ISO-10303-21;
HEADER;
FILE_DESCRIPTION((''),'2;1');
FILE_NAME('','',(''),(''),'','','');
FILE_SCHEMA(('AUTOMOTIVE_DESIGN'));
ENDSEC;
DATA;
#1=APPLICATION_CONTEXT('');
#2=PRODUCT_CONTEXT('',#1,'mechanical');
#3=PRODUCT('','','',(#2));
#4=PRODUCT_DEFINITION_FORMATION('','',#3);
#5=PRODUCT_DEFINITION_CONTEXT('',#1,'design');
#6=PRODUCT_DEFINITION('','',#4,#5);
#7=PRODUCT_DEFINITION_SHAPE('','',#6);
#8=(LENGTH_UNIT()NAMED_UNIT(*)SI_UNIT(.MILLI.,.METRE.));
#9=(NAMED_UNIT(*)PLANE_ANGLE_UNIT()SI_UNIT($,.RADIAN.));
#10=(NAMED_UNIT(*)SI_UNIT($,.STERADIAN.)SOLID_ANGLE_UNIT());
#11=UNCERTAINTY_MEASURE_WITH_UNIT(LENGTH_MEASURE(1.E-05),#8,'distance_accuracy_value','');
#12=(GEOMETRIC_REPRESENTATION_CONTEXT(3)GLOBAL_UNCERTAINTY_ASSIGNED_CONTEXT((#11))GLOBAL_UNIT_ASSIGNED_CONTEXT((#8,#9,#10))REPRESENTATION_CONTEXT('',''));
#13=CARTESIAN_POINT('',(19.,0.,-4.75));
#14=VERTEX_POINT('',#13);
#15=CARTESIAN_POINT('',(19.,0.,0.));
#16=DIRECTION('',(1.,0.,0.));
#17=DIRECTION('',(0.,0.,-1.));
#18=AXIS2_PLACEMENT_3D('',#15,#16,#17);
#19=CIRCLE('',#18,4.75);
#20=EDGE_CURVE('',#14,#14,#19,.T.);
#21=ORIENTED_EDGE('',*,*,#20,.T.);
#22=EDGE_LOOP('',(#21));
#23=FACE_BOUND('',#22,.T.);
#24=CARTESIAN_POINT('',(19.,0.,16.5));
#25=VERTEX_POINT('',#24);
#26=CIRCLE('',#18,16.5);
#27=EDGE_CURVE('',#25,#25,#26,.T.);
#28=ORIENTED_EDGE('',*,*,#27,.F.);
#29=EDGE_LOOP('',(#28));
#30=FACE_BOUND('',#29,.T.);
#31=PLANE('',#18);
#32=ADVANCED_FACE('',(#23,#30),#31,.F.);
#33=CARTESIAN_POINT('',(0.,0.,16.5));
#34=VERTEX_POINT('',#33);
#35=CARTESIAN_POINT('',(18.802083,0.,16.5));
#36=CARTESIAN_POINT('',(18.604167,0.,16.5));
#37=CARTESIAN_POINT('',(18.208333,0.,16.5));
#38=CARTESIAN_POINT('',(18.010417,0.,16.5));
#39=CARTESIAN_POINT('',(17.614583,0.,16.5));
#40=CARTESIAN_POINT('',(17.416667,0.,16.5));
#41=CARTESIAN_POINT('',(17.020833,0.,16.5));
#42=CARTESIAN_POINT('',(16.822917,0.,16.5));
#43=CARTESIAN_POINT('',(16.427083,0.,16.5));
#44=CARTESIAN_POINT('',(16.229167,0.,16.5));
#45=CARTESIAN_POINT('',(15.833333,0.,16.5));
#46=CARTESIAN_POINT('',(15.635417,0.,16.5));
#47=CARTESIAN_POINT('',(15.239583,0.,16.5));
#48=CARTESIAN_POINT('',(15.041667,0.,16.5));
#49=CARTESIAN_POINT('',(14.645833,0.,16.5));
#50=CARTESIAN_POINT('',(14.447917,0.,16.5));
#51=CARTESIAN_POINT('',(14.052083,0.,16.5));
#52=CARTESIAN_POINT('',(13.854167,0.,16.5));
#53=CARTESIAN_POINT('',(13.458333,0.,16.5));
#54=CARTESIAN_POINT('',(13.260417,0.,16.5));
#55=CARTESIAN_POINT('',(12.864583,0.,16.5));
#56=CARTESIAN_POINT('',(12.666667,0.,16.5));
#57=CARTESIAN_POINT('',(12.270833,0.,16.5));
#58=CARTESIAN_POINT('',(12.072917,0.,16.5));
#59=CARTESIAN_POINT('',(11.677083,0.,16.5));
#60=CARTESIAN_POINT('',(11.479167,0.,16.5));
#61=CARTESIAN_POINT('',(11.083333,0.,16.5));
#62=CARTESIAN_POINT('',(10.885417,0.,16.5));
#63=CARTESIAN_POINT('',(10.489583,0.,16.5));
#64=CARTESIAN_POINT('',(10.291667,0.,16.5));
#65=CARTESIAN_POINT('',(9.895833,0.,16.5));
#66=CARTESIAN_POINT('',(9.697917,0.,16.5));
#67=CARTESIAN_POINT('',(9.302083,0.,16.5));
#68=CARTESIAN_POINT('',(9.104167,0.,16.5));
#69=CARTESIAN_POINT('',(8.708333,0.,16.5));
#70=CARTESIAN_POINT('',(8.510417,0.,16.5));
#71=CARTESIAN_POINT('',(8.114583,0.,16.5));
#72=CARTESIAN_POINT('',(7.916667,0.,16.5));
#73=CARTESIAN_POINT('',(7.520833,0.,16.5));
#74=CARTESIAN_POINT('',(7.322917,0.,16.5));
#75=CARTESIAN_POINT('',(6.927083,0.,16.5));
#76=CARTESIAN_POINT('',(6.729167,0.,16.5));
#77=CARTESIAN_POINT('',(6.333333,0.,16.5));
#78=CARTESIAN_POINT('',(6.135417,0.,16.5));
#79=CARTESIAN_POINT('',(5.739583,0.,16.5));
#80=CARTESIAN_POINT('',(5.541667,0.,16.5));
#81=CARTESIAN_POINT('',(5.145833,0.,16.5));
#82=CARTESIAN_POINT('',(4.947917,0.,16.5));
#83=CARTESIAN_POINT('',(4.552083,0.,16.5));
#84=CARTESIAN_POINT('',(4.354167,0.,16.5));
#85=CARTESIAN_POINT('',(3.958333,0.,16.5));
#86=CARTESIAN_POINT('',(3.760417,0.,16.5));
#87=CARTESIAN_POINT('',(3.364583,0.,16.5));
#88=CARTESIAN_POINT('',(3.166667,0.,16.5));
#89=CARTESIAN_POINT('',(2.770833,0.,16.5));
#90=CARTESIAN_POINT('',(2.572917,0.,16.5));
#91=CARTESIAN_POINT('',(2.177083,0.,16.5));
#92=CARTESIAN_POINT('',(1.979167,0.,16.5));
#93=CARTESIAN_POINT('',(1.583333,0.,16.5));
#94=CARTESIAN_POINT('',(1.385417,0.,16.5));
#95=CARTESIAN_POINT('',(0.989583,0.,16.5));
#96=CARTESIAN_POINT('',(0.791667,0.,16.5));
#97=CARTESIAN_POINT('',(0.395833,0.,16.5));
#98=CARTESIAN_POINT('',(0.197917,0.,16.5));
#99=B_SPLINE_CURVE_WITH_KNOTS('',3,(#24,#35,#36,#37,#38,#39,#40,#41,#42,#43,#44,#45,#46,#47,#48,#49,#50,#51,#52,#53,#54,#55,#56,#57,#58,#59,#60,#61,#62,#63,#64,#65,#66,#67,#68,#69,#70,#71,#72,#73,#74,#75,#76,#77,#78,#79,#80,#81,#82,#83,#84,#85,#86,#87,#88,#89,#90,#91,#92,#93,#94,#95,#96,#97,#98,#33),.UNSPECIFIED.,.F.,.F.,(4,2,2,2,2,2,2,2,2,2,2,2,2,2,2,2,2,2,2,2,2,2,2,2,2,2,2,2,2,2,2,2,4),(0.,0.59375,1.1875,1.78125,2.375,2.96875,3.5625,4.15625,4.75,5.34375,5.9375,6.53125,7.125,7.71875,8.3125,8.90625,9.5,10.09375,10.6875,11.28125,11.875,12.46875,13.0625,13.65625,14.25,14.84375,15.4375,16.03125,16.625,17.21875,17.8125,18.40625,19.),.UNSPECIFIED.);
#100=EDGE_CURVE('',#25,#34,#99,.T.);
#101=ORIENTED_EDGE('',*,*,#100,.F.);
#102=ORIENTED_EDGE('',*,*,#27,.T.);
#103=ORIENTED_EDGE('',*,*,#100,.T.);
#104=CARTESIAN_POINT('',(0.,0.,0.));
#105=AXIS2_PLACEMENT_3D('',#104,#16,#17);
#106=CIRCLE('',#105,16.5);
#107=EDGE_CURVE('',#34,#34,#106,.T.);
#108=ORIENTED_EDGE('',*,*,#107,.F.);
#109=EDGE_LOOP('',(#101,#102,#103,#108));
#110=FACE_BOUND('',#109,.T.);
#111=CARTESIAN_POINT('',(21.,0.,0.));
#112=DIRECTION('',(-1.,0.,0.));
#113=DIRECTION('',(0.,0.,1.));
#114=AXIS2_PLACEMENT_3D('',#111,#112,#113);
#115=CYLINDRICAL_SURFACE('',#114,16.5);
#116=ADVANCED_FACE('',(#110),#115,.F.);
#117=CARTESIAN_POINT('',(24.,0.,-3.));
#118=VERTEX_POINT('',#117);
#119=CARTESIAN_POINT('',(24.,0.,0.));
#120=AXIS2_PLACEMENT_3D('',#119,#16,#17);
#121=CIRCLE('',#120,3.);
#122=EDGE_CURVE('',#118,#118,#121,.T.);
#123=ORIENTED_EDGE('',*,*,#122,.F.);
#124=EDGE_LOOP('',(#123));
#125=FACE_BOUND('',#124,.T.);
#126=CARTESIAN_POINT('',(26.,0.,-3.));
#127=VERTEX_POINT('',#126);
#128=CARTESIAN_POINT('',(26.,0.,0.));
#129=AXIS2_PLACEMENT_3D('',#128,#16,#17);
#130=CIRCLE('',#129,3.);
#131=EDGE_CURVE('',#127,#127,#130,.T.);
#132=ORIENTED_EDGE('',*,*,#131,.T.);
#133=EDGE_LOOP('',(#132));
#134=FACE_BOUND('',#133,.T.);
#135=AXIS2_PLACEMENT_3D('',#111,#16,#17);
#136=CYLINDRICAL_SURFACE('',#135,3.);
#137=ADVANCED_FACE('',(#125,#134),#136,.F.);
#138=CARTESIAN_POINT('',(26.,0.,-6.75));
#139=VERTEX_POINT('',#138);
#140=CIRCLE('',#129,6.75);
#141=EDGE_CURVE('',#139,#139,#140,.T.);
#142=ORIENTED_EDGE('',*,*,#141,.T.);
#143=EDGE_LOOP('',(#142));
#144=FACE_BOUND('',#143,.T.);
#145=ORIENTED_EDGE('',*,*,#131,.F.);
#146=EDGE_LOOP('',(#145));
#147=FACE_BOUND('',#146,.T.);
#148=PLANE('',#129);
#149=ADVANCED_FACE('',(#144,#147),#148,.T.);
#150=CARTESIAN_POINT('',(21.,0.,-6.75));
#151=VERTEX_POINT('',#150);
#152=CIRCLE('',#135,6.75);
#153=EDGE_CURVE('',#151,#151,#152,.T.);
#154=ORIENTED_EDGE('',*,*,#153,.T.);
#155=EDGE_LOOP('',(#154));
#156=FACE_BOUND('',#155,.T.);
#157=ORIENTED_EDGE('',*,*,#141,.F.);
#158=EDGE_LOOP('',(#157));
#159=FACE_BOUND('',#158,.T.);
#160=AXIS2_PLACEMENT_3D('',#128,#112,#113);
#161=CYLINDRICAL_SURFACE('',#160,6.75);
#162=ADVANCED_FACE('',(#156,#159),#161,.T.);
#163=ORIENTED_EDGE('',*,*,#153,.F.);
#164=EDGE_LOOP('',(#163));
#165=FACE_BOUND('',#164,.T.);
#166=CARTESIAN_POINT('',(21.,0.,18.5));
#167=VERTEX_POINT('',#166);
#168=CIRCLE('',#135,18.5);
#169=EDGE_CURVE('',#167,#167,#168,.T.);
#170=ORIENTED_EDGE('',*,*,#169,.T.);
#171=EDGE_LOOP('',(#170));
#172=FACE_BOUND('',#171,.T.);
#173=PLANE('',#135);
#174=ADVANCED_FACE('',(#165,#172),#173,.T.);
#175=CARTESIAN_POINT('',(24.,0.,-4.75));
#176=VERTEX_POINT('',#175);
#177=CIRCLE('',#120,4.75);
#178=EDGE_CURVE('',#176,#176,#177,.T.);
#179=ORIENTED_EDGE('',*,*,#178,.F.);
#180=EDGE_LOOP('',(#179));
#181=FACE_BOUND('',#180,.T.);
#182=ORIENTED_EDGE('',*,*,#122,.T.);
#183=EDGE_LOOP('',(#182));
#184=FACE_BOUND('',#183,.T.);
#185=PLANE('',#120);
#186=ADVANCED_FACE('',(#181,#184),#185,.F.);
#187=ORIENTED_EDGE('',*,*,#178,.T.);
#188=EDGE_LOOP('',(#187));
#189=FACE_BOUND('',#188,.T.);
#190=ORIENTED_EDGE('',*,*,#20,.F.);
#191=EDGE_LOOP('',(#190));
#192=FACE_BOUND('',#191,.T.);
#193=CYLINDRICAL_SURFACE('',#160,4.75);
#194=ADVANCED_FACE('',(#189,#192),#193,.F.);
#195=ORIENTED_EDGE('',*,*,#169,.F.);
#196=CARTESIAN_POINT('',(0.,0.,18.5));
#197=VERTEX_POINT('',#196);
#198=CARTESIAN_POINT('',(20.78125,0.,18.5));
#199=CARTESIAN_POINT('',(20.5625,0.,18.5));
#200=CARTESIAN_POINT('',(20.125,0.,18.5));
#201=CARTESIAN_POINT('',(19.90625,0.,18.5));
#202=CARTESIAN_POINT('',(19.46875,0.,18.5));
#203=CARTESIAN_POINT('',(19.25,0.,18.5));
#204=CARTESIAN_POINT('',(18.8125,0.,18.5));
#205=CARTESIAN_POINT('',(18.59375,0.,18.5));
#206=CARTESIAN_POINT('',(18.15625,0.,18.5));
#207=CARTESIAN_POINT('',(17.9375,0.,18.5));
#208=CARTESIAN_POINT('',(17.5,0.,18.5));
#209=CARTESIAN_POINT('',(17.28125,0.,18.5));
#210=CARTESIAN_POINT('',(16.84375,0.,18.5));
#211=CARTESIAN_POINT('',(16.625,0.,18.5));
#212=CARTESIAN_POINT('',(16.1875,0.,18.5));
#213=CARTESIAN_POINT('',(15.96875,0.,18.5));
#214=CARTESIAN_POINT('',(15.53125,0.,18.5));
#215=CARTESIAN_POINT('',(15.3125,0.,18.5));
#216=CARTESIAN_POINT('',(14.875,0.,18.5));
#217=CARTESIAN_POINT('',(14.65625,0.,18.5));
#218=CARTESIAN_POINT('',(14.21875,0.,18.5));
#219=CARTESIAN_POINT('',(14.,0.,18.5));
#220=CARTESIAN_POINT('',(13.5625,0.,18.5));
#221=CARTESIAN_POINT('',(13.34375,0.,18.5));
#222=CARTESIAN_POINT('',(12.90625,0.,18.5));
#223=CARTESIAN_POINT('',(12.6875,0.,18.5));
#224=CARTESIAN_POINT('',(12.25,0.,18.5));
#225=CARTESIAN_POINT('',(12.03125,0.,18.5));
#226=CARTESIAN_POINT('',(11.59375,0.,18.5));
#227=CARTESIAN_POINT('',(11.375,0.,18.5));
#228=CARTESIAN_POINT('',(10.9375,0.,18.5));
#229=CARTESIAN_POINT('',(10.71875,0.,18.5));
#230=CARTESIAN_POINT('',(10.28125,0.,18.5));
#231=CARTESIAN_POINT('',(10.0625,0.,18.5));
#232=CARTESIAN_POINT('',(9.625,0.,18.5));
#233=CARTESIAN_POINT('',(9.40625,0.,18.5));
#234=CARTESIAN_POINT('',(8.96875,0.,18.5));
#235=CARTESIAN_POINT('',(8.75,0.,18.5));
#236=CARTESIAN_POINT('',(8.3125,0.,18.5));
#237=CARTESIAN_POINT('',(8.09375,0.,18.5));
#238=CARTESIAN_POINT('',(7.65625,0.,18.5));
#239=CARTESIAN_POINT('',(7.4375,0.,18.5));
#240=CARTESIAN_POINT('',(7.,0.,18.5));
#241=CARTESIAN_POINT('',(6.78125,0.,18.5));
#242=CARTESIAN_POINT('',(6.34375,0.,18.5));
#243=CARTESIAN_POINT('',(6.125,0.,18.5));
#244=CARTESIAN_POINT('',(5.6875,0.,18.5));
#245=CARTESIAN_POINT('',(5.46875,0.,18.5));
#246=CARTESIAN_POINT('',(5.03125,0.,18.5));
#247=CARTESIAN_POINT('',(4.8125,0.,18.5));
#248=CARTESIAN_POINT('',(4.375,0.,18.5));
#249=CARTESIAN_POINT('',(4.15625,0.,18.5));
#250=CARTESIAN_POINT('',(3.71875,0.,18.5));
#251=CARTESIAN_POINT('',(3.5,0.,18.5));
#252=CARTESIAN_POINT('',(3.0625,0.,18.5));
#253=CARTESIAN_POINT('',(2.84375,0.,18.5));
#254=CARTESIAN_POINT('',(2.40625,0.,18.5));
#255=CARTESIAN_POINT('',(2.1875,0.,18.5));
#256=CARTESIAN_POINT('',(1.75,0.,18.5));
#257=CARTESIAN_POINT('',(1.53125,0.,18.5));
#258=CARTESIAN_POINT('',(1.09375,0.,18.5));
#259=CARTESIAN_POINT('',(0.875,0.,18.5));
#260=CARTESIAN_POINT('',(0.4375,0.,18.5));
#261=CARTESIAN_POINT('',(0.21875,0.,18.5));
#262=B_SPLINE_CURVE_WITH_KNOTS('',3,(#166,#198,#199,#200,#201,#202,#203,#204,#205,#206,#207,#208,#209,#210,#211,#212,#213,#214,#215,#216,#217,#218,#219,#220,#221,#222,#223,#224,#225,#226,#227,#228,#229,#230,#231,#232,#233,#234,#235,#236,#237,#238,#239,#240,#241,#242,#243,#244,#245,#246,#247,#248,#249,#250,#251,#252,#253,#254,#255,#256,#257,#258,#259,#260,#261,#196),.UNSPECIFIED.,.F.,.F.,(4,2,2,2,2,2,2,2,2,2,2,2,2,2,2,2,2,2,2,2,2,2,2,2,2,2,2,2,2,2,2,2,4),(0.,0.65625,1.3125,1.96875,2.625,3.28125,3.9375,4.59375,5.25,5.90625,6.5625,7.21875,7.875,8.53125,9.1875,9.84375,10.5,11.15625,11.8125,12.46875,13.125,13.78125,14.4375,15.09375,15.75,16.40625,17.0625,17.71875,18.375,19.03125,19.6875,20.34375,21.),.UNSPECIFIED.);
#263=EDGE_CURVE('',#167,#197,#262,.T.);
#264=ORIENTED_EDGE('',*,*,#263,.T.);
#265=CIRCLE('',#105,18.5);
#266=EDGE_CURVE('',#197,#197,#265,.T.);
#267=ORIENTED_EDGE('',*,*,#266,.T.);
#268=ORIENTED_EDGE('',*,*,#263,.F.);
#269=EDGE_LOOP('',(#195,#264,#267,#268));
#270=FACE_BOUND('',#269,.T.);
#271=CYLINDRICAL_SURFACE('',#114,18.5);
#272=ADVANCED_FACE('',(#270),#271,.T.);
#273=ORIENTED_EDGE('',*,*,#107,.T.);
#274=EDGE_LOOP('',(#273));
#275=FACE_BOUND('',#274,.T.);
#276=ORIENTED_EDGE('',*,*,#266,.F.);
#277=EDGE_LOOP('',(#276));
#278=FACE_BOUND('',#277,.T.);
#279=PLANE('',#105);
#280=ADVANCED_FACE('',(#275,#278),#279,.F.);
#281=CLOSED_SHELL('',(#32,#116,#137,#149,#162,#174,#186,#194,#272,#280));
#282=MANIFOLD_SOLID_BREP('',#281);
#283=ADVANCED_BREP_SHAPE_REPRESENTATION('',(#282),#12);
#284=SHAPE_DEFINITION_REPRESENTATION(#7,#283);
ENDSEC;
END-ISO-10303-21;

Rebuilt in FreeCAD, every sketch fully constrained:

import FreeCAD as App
import Part
import Sketcher
from FreeCAD import Vector


def faces_at(feature, points):
    """Names of the faces that lie closest to the given points."""
    faces = feature.Shape.Faces
    near = lambda p: min(range(len(faces)), key=lambda i: faces[i].distToShape(Part.Vertex(*p))[0])
    return sorted({f"Face{near(p) + 1}" for p in points})

doc = App.newDocument("Part")
params = doc.addObject("Spreadsheet::Sheet", "Params")
for row, (alias, value) in enumerate([
    ("sketch1_diameter", "37 mm"),
    ("pad1_length", "21 mm"),
    ("sketch2_diameter", "13.5 mm"),
    ("pad2_length", "5 mm"),
    ("thickness_wall", "2 mm"),
    ("sketch3_diameter", "6 mm"),
    ("pocket1_length", "5 mm"),
], start=1):
    params.set(f"A{row}", alias)
    params.set(f"B{row}", "=" + value)
    params.setAlias(f"B{row}", alias)

body = doc.addObject("PartDesign::Body", "Body")

# Sketch on YZ plane
sketch1 = body.newObject("Sketcher::SketchObject", "Sketch")
sketch1.AttachmentSupport = (doc.getObject("YZ_Plane"), [""])
sketch1.MapMode = "FlatFace"
sketch1.addGeometry(Part.Circle(Vector(0, 0, 0), Vector(0, 0, 1), 18), False)
sketch1.addConstraint([
    Sketcher.Constraint("Coincident", 0, 3, -1, 1),
    Sketcher.Constraint("Diameter", 0, 37.0),
])
sketch1.setExpression("Constraints[1]", "Params.sketch1_diameter")
pad1 = body.newObject("PartDesign::Pad", "Pad")
pad1.Profile = sketch1
pad1.setExpression("Length", "Params.pad1_length")

# Sketch on YZ plane
sketch2 = body.newObject("Sketcher::SketchObject", "Sketch001")
sketch2.AttachmentSupport = (doc.getObject("YZ_Plane"), [""])
sketch2.MapMode = "FlatFace"
sketch2.AttachmentOffset = App.Placement(Vector(0, 0, 21), App.Rotation())
sketch2.addGeometry(Part.Circle(Vector(0, 0, 0), Vector(0, 0, 1), 7), False)
sketch2.addConstraint([
    Sketcher.Constraint("Coincident", 0, 3, -1, 1),
    Sketcher.Constraint("Diameter", 0, 13.5),
])
sketch2.setExpression("Constraints[1]", "Params.sketch2_diameter")
pad2 = body.newObject("PartDesign::Pad", "Pad001")
pad2.Profile = sketch2
pad2.setExpression("Length", "Params.pad2_length")
doc.recompute()

thickness = body.newObject("PartDesign::Thickness", "Thickness")
thickness.Base = (pad2, faces_at(pad2, [(0, 0, 0)]))
thickness.setExpression("Value", "Params.thickness_wall")
thickness.Reversed = True
thickness.Join = "Intersection"

# Sketch on YZ plane
sketch3 = body.newObject("Sketcher::SketchObject", "Sketch002")
sketch3.AttachmentSupport = (doc.getObject("YZ_Plane"), [""])
sketch3.MapMode = "FlatFace"
sketch3.AttachmentOffset = App.Placement(Vector(0, 0, 26), App.Rotation())
sketch3.addGeometry(Part.Circle(Vector(0, 0, 0), Vector(0, 0, 1), 3), False)
sketch3.addConstraint([
    Sketcher.Constraint("Coincident", 0, 3, -1, 1),
    Sketcher.Constraint("Diameter", 0, 6.0),
])
sketch3.setExpression("Constraints[1]", "Params.sketch3_diameter")
pocket1 = body.newObject("PartDesign::Pocket", "Pocket")
pocket1.Profile = sketch3
pocket1.setExpression("Length", "Params.pocket1_length")

doc.recompute()
